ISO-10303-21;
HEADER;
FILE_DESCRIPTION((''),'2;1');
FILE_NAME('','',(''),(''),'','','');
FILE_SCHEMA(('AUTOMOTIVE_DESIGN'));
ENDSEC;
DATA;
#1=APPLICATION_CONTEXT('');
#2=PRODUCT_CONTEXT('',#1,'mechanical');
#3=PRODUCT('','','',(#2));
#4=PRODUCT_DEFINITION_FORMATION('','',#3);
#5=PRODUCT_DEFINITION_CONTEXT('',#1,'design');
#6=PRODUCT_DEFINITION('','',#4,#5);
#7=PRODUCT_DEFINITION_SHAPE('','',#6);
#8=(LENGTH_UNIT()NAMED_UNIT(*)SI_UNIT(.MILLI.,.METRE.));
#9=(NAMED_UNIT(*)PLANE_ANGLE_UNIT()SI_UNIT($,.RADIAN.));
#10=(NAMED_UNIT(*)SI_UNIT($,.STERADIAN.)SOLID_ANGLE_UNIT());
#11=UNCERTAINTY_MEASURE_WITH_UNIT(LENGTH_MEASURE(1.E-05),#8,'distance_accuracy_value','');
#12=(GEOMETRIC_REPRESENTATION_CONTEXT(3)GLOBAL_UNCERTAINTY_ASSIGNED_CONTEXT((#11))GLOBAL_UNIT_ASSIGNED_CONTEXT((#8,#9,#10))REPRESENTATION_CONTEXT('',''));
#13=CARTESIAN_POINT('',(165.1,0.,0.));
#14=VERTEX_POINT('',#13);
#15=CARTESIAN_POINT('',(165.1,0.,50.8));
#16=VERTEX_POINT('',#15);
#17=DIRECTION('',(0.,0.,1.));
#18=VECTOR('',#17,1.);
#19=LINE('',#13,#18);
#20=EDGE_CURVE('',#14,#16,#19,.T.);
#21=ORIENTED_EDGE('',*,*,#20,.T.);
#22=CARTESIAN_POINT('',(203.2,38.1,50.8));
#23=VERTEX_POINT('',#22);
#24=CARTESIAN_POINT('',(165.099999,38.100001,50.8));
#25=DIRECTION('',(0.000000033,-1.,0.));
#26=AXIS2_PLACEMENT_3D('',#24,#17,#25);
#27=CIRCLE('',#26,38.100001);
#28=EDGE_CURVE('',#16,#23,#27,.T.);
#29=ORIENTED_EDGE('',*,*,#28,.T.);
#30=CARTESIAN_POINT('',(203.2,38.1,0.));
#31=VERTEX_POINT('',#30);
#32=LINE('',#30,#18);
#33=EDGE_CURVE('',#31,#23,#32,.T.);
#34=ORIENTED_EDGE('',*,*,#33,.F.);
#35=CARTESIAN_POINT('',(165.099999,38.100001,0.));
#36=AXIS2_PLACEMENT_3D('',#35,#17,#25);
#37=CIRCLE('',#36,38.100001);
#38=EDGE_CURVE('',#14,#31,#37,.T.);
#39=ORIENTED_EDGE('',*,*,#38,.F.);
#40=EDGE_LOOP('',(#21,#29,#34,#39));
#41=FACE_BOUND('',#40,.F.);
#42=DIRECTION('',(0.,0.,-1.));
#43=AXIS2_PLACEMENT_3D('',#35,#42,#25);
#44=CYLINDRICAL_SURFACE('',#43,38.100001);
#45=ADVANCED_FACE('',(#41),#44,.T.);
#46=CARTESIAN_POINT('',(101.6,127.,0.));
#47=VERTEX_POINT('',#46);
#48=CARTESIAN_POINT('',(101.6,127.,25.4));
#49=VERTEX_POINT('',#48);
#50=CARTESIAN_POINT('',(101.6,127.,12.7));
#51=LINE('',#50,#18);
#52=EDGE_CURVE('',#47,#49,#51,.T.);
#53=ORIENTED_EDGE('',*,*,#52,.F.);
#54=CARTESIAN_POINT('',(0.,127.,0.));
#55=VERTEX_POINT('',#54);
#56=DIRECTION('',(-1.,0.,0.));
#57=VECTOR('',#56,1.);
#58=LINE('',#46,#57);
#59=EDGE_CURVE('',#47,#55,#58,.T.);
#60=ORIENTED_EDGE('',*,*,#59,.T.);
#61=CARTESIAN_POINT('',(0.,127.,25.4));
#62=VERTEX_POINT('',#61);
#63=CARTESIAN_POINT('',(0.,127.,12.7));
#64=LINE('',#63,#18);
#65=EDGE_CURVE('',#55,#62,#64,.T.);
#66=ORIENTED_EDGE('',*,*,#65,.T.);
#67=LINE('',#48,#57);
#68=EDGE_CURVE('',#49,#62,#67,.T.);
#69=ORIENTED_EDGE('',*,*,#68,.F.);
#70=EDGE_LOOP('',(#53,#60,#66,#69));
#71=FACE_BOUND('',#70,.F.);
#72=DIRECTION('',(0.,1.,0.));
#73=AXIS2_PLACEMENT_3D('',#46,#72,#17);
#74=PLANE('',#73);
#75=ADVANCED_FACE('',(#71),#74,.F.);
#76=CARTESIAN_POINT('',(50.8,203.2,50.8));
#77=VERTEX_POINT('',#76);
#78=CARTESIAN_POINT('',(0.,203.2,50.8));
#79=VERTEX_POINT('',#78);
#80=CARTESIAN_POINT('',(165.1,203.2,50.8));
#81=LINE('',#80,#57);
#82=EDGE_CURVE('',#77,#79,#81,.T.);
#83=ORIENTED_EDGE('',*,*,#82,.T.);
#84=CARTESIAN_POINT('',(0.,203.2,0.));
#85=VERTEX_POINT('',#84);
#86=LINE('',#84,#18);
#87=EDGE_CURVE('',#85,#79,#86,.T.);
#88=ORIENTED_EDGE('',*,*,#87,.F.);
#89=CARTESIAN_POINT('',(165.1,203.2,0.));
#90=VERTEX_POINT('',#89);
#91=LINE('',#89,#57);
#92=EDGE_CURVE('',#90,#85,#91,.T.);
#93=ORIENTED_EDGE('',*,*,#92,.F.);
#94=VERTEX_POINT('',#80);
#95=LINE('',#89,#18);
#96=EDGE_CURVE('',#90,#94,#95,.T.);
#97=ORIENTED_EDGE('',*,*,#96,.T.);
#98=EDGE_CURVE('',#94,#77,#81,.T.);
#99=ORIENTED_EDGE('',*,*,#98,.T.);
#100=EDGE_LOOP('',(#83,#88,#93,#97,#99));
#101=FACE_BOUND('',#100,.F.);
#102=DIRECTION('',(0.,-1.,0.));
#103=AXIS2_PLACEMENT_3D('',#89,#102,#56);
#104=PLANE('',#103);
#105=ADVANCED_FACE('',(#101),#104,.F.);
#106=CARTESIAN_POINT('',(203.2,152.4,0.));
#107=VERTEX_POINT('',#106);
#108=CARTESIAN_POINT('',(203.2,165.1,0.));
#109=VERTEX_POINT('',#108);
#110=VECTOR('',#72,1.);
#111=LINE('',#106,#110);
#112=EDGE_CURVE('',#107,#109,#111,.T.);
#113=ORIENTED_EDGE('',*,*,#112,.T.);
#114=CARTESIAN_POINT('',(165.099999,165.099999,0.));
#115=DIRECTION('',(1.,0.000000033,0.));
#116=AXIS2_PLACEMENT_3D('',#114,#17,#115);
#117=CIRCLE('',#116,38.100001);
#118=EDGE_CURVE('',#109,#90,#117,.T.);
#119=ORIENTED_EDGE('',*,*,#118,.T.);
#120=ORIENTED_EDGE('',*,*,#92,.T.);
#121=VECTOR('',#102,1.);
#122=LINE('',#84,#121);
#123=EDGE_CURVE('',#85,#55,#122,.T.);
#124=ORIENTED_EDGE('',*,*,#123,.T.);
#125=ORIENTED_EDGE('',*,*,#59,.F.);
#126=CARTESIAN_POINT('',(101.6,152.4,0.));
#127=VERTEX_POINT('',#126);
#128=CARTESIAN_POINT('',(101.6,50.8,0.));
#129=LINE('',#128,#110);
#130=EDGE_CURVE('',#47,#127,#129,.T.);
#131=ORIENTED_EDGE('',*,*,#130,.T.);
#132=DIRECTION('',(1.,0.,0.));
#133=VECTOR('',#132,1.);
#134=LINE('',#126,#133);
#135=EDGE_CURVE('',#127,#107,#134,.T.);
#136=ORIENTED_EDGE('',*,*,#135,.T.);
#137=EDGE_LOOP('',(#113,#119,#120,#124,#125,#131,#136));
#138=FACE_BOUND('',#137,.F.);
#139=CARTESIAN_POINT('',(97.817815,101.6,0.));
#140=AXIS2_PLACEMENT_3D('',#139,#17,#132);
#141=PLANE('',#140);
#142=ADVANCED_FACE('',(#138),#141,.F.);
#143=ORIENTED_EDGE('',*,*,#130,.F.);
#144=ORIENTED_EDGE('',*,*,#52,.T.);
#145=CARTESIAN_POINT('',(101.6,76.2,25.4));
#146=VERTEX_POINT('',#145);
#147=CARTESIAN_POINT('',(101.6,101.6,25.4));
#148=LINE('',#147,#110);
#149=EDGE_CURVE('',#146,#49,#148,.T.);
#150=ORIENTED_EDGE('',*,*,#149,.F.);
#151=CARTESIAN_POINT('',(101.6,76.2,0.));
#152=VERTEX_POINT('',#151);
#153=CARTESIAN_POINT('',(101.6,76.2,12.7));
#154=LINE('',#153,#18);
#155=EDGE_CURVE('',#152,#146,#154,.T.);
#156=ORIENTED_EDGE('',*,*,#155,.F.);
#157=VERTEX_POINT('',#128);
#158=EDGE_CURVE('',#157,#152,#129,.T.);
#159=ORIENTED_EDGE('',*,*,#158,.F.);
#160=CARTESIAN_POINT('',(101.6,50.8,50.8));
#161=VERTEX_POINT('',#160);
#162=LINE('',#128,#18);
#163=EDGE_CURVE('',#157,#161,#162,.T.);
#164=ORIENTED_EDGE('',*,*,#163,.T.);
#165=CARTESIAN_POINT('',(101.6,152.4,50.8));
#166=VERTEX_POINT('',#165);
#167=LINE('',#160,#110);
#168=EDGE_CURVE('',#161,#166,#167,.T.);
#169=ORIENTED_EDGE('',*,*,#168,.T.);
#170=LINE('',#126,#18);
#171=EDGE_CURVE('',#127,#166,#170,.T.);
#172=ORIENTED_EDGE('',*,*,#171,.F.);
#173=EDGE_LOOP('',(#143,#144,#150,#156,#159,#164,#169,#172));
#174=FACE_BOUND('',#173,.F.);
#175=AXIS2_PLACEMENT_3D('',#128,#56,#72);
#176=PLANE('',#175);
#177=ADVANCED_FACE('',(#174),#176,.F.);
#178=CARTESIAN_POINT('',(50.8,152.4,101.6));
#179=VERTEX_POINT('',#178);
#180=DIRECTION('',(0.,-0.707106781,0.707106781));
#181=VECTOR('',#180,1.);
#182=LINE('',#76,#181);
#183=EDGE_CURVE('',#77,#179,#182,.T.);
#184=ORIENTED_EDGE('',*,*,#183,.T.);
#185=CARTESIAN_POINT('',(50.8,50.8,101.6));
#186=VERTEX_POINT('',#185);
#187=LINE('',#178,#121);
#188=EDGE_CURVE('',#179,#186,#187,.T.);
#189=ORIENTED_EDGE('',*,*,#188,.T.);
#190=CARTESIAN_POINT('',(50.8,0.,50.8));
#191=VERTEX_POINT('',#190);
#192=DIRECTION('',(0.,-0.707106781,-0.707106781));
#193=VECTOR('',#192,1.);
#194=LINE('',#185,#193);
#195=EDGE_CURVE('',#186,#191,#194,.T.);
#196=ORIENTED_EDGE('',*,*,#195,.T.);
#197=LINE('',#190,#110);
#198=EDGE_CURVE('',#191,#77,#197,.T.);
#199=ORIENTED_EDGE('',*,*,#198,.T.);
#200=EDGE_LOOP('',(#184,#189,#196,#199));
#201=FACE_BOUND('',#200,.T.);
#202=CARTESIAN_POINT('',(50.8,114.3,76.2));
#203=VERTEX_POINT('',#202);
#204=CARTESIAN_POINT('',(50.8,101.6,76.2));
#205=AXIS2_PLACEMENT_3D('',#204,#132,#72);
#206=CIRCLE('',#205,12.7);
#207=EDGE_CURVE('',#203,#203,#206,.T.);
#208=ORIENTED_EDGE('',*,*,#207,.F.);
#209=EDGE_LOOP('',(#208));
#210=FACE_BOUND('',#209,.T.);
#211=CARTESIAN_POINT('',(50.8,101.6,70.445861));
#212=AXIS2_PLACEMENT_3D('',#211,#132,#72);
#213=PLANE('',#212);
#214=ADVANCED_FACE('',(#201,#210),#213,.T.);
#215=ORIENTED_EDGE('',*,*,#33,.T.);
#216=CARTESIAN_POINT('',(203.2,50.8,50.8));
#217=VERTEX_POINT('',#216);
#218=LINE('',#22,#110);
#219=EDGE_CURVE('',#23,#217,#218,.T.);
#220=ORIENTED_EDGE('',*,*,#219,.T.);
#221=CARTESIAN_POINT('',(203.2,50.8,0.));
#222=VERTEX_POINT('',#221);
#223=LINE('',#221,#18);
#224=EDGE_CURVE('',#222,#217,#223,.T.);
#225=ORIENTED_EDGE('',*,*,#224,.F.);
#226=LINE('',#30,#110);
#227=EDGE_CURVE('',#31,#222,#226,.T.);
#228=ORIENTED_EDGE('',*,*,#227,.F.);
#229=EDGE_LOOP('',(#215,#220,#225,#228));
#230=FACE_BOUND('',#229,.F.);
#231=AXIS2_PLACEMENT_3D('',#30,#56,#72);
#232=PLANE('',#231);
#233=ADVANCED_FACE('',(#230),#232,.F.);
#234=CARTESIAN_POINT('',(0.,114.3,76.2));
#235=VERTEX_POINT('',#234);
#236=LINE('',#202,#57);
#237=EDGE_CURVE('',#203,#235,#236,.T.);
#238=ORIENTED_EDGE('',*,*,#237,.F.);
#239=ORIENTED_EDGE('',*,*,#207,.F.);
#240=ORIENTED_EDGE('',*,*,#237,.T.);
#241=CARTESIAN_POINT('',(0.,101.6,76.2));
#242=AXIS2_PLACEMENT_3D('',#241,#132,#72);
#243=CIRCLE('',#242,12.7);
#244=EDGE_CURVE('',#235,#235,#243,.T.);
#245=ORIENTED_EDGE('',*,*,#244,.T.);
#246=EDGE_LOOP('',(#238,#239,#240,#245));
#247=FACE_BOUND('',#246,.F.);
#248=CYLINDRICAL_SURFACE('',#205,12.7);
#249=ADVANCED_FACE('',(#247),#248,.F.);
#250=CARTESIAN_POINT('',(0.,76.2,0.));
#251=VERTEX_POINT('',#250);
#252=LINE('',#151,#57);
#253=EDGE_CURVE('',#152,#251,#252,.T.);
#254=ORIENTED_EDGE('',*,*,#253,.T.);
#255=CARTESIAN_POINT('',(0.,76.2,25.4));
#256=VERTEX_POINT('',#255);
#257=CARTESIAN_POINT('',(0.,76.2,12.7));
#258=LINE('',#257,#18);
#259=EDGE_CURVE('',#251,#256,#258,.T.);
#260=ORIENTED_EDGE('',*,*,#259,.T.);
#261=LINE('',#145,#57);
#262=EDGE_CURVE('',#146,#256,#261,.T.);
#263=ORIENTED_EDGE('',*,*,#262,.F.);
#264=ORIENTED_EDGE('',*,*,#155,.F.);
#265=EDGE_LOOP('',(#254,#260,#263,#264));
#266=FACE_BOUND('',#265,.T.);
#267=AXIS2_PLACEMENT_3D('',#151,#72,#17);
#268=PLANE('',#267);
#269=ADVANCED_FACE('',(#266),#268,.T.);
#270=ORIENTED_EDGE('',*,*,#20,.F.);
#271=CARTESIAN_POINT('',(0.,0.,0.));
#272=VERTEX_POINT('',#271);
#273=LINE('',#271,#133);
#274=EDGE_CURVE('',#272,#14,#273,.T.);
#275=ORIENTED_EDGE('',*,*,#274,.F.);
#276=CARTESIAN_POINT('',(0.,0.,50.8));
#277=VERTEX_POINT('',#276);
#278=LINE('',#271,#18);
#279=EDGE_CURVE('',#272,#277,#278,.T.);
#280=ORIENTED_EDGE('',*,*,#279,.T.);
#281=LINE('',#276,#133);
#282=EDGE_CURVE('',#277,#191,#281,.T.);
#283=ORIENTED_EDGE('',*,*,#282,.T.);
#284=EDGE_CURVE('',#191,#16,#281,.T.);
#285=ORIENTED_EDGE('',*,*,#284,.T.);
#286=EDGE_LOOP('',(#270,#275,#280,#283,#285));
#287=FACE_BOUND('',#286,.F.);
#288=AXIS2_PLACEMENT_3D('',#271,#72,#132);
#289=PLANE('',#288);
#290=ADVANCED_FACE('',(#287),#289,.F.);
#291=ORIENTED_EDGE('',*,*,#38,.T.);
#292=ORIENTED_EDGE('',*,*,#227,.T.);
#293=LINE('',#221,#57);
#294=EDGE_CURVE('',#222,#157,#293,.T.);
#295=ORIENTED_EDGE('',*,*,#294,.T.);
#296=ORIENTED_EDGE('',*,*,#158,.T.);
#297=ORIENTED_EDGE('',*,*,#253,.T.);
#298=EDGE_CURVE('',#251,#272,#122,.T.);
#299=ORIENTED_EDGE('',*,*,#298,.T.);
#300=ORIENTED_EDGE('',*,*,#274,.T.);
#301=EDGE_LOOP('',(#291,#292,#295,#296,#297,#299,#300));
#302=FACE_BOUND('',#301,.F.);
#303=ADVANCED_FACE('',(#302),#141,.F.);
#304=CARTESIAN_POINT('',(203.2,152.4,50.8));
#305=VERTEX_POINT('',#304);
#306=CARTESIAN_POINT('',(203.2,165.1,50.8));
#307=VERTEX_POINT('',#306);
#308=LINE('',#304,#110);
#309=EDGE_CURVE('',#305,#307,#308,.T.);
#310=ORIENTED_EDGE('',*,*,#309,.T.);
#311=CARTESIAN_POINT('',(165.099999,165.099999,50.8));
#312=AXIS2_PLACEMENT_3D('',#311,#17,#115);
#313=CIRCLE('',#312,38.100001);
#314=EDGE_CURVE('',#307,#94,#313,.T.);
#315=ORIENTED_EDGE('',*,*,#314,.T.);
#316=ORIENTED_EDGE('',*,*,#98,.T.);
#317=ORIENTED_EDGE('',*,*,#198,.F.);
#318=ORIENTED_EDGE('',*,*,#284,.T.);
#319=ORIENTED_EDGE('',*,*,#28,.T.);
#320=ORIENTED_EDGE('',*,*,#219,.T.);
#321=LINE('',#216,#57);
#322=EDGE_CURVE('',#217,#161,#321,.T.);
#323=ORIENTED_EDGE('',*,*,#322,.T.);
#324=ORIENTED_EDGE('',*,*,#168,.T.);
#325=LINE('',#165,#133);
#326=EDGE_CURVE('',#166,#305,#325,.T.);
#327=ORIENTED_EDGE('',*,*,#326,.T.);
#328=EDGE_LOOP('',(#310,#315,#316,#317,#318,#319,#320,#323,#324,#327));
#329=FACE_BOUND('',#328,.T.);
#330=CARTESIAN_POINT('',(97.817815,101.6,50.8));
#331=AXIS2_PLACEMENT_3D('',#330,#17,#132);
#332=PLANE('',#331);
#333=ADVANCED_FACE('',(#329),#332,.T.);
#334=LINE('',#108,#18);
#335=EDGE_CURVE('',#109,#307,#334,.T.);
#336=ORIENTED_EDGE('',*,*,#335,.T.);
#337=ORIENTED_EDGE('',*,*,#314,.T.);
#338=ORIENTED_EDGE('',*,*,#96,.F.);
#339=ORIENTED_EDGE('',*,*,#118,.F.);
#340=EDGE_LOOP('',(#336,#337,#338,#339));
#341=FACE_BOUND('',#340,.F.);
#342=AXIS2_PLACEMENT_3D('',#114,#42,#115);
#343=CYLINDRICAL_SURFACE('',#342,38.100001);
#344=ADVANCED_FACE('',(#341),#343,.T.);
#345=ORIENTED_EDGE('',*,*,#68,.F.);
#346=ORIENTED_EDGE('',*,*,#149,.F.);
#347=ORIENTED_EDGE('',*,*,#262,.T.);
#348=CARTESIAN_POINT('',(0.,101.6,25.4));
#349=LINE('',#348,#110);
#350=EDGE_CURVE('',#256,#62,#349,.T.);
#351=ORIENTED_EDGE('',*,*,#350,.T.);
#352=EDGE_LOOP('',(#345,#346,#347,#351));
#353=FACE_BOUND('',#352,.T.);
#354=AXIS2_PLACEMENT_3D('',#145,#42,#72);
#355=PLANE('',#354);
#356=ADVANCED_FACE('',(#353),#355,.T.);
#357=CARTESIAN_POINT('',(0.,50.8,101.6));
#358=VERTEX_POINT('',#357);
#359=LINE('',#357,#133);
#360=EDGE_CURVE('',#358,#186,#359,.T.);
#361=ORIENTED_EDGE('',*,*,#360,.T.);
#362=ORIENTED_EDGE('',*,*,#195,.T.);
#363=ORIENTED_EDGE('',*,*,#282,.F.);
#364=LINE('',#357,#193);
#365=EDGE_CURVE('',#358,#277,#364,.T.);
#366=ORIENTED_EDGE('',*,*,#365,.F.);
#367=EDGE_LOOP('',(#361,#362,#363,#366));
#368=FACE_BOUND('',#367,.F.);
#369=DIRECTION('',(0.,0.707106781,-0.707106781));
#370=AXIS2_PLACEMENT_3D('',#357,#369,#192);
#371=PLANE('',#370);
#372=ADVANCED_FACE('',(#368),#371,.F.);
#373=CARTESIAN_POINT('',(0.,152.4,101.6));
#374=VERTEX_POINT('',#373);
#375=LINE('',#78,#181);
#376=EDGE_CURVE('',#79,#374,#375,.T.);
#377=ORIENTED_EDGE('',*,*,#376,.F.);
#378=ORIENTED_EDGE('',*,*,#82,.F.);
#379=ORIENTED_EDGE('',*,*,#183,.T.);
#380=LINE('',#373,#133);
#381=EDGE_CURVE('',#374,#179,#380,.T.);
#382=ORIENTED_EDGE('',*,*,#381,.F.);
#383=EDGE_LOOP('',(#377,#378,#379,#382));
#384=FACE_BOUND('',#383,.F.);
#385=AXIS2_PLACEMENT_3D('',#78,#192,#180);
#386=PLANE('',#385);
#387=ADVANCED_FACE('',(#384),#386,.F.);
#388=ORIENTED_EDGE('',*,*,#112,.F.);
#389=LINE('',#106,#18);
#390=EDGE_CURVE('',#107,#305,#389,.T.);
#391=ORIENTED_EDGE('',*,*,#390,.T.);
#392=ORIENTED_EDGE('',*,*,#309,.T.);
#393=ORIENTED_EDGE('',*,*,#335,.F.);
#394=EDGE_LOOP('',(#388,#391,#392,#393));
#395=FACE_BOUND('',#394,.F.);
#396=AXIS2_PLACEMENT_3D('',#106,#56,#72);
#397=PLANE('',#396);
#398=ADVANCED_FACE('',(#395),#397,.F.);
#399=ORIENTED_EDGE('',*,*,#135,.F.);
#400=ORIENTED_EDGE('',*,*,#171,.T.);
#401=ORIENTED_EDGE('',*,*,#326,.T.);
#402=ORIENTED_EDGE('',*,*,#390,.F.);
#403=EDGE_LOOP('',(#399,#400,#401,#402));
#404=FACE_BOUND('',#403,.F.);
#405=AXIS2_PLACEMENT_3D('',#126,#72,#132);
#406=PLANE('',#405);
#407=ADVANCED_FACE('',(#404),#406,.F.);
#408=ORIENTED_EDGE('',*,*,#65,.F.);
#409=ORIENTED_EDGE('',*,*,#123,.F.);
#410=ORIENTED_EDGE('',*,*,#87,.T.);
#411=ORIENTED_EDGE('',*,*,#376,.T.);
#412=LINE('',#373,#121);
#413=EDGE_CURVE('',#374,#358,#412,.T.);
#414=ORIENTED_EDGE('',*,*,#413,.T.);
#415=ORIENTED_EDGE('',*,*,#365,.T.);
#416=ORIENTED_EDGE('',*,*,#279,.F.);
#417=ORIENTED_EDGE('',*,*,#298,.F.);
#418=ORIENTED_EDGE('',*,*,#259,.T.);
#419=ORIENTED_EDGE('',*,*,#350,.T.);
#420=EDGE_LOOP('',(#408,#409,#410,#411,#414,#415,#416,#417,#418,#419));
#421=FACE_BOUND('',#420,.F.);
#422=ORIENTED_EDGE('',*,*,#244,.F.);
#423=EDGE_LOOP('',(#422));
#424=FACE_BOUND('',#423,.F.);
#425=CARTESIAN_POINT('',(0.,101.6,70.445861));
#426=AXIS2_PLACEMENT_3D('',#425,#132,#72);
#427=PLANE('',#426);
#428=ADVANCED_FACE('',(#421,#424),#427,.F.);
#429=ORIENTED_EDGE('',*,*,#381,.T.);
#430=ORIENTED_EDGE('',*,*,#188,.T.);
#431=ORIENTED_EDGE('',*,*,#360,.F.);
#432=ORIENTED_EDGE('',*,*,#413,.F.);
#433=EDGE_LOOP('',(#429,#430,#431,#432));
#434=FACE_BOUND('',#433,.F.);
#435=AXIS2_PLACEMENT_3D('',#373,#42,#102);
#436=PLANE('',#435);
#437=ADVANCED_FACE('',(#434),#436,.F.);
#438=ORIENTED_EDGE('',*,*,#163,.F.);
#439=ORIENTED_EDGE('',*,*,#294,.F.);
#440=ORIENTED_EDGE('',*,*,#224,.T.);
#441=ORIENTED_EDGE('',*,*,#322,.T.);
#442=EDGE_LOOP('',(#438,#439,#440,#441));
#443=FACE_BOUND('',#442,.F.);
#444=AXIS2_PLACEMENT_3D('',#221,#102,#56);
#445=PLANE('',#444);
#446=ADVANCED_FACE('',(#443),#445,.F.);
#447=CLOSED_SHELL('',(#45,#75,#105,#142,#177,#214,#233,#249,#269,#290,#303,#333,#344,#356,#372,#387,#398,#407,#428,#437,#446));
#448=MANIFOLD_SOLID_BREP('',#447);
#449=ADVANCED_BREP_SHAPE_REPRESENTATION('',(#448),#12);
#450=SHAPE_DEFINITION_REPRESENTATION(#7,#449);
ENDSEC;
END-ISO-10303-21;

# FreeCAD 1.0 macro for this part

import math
import FreeCAD as App
import Part
import Sketcher

V = App.Vector
Q = App.Units.Quantity


def add_polygon(sketch, points):
    """Adds a closed chain of lines whose ends are joined by coincident constraints."""
    first, n = sketch.GeometryCount, len(points)
    for a, b in zip(points, points[1:] + points[:1]):
        sketch.addGeometry(Part.LineSegment(App.Vector(*a, 0), App.Vector(*b, 0)), False)
    for i in range(n):
        sketch.addConstraint(Sketcher.Constraint("Coincident", first + i, 2, first + (i + 1) % n, 1))

doc = App.newDocument("Part")
body = doc.addObject("PartDesign::Body", "Body")

# Sketch on XY plane
sketch1 = body.newObject("Sketcher::SketchObject", "Sketch")
sketch1.AttachmentSupport = (doc.getObject("XY_Plane"), [""])
sketch1.MapMode = "FlatFace"
sketch1.addGeometry([
    Part.LineSegment(V(165, 203, 0), V(0, 203, 0)),  # 0
    Part.LineSegment(V(0, 203, 0), V(0, 0, 0)),  # 1
    Part.LineSegment(V(0, 0, 0), V(165, 0, 0)),  # 2
    Part.ArcOfCircle(Part.Circle(V(165, 38, 0), V(0, 0, 1), 38), math.radians(-90), math.radians(0)),  # 3
    Part.LineSegment(V(203, 38, 0), V(203, 51, 0)),  # 4
    Part.LineSegment(V(203, 51, 0), V(102, 51, 0)),  # 5
    Part.LineSegment(V(102, 51, 0), V(102, 152, 0)),  # 6
    Part.LineSegment(V(102, 152, 0), V(203, 152, 0)),  # 7
    Part.LineSegment(V(203, 152, 0), V(203, 165, 0)),  # 8
    Part.ArcOfCircle(Part.Circle(V(165, 165, 0), V(0, 0, 1), 38), math.radians(0), math.radians(90)),  # 9
], False)
sketch1.addConstraint([
    Sketcher.Constraint("Coincident", 0, 2, 1, 1),
    Sketcher.Constraint("Coincident", 1, 2, 2, 1),
    Sketcher.Constraint("Tangent", 2, 2, 3, 1),
    Sketcher.Constraint("Tangent", 3, 2, 4, 1),
    Sketcher.Constraint("Coincident", 4, 2, 5, 1),
    Sketcher.Constraint("Coincident", 5, 2, 6, 1),
    Sketcher.Constraint("Coincident", 6, 2, 7, 1),
    Sketcher.Constraint("Coincident", 7, 2, 8, 1),
    Sketcher.Constraint("Tangent", 8, 2, 9, 1),
    Sketcher.Constraint("Tangent", 9, 2, 0, 1),
    Sketcher.Constraint("Horizontal", 0),
    Sketcher.Constraint("Vertical", 1),
    Sketcher.Constraint("Horizontal", 2),
    Sketcher.Constraint("Vertical", 4),
    Sketcher.Constraint("Horizontal", 5),
    Sketcher.Constraint("Vertical", 6),
    Sketcher.Constraint("Horizontal", 7),
    Sketcher.Constraint("Vertical", 8),
    Sketcher.Constraint("Coincident", 1, 2, -1, 1),
    Sketcher.Constraint("Equal", 3, 9),
    Sketcher.Constraint("Vertical", 3, 3, 9, 3),
    Sketcher.Constraint("Equal", 7, 6),
    Sketcher.Constraint("Equal", 4, 8),
    Sketcher.Constraint("Radius", 3, Q("1.5 in")),
    Sketcher.Constraint("DistanceX", 5, 2, 5, 1, Q("4 in")),
    Sketcher.Constraint("DistanceY", 1, 2, 1, 1, Q("8 in")),
    Sketcher.Constraint("DistanceX", 0, 2, 0, 1, Q("6.5 in")),
])
pad1 = body.newObject("PartDesign::Pad", "Pad")
pad1.Profile = sketch1
pad1.Length = Q("2 in")

# Sketch on YZ plane
sketch2 = body.newObject("Sketcher::SketchObject", "Sketch001")
sketch2.AttachmentSupport = (doc.getObject("YZ_Plane"), [""])
sketch2.MapMode = "FlatFace"
add_polygon(sketch2, [(152, 102), (51, 102), (0, 51), (203, 51)])  # lines 0-3
sketch2.addConstraint([
    Sketcher.Constraint("Horizontal", 0),
    Sketcher.Constraint("Horizontal", 2),
    Sketcher.Constraint("PointOnObject", 1, 2, -2),
    Sketcher.Constraint("Perpendicular", 1, 3),
    Sketcher.Constraint("Equal", 1, 3),
    Sketcher.Constraint("DistanceX", 0, 2, 0, 1, Q("4 in")),
    Sketcher.Constraint("DistanceX", 2, 1, 2, 2, Q("8 in")),
    Sketcher.Constraint("DistanceY", -1, 1, 0, 2, Q("4 in")),
])
pad2 = body.newObject("PartDesign::Pad", "Pad001")
pad2.Profile = sketch2
pad2.Length = Q("2 in")

# Sketch on YZ plane
sketch3 = body.newObject("Sketcher::SketchObject", "Sketch002")
sketch3.AttachmentSupport = (doc.getObject("YZ_Plane"), [""])
sketch3.MapMode = "FlatFace"
sketch3.AttachmentOffset = App.Placement(V(0, 0, 2 * 25.4), App.Rotation())
sketch3.addGeometry(Part.Circle(V(102, 76, 0), V(0, 0, 1), 13), False)
sketch3.addConstraint([
    Sketcher.Constraint("Diameter", 0, Q("1 in")),
    Sketcher.Constraint("DistanceX", -1, 1, 0, 3, Q("4 in")),
    Sketcher.Constraint("DistanceY", -1, 1, 0, 3, Q("3 in")),
])
pocket1 = body.newObject("PartDesign::Pocket", "Pocket")
pocket1.Profile = sketch3
pocket1.Length = Q("2 in")

# Sketch on YZ plane
sketch4 = body.newObject("Sketcher::SketchObject", "Sketch003")
sketch4.AttachmentSupport = (doc.getObject("YZ_Plane"), [""])
sketch4.MapMode = "FlatFace"
sketch4.AttachmentOffset = App.Placement(V(0, 0, 4 * 25.4), App.Rotation())
add_polygon(sketch4, [(76, 25), (76, 0), (127, 0), (127, 25)])  # lines 0-3
sketch4.addConstraint([
    Sketcher.Constraint("Vertical", 0),
    Sketcher.Constraint("Horizontal", 1),
    Sketcher.Constraint("Vertical", 2),
    Sketcher.Constraint("Horizontal", 3),
    Sketcher.Constraint("PointOnObject", 0, 2, -1),
    Sketcher.Constraint("DistanceX", 1, 1, 1, 2, Q("2 in")),
    Sketcher.Constraint("DistanceY", 0, 2, 0, 1, Q("1 in")),
    Sketcher.Constraint("DistanceX", -1, 1, 0, 2, Q("3 in")),
])
pocket2 = body.newObject("PartDesign::Pocket", "Pocket001")
pocket2.Profile = sketch4
pocket2.Length = Q("4 in")

doc.recompute()
